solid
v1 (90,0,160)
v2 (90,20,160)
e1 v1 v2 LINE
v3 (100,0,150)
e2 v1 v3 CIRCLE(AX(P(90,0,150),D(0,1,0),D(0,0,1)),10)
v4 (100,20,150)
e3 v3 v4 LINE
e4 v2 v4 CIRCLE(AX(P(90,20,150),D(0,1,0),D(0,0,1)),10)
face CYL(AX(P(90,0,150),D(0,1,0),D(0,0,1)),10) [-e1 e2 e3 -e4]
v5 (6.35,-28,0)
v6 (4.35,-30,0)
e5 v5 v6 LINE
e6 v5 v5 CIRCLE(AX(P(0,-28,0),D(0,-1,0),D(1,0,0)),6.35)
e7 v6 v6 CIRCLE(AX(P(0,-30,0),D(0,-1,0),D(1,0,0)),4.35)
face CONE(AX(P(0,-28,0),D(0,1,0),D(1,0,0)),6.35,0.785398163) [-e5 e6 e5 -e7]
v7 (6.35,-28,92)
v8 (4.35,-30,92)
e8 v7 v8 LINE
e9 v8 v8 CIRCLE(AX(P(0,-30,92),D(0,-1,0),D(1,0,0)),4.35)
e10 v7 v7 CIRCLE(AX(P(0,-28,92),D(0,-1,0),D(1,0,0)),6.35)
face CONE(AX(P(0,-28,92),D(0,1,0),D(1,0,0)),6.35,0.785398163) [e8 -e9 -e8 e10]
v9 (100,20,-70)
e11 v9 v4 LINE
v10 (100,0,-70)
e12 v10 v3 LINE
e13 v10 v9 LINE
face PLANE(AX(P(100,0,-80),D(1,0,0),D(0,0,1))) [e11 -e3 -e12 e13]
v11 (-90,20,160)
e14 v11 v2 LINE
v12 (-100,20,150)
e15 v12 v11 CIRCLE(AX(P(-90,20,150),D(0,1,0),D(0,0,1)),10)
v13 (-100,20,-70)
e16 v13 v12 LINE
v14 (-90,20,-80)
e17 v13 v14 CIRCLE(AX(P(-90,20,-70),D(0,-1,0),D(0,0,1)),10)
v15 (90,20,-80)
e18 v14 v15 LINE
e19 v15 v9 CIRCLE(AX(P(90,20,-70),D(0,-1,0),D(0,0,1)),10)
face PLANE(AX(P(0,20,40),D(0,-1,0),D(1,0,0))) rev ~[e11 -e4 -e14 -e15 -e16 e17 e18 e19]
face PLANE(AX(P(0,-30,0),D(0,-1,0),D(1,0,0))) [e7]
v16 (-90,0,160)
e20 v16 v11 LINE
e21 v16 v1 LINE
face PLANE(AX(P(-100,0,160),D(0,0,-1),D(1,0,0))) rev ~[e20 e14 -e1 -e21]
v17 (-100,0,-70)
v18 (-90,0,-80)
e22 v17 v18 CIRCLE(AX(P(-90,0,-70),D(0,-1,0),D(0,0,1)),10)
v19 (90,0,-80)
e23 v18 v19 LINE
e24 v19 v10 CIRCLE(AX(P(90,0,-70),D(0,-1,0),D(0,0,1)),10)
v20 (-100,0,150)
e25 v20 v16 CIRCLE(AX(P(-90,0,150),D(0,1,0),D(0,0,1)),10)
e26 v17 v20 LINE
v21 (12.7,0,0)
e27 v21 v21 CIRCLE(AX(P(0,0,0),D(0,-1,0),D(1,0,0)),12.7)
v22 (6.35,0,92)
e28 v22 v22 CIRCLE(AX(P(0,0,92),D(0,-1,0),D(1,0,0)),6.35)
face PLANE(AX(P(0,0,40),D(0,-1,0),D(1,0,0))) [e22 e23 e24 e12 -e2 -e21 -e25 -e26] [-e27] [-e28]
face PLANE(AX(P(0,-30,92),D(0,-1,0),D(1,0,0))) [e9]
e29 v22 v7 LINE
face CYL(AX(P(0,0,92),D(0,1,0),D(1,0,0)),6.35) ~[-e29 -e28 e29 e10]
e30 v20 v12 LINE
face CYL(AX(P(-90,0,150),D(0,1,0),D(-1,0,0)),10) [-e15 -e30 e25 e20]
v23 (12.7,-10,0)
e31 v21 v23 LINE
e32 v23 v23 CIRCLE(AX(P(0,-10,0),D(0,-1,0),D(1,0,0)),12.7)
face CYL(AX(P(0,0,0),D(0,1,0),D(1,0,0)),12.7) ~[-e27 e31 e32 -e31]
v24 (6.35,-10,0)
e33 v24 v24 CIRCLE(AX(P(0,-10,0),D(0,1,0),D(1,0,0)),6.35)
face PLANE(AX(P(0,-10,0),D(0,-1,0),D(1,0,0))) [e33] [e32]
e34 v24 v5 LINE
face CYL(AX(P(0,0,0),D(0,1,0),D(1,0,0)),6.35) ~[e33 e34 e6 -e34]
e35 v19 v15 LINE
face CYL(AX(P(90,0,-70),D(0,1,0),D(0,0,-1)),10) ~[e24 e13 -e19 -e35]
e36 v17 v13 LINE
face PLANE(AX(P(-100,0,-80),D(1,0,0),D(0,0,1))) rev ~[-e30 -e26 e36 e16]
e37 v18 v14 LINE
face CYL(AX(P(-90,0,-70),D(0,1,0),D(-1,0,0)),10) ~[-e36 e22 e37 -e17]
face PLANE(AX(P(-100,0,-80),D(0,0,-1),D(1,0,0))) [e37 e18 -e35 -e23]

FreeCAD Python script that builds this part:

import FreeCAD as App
import Part
import Sketcher

V = App.Vector


def edges_at(feature, points):
    """Names of the edges that pass closest to the given points."""
    edges = feature.Shape.Edges
    near = lambda p: min(range(len(edges)), key=lambda i: edges[i].distToShape(Part.Vertex(*p))[0])
    return sorted({f"Edge{near(p) + 1}" for p in points})


def add_polygon(sketch, points):
    """Adds a closed chain of lines whose ends are joined by coincident constraints."""
    first, n = sketch.GeometryCount, len(points)
    for a, b in zip(points, points[1:] + points[:1]):
        sketch.addGeometry(Part.LineSegment(App.Vector(*a, 0), App.Vector(*b, 0)), False)
    for i in range(n):
        sketch.addConstraint(Sketcher.Constraint("Coincident", first + i, 2, first + (i + 1) % n, 1))

doc = App.newDocument("Part")
body = doc.addObject("PartDesign::Body", "Body")

# Sketch on XZ plane
sketch1 = body.newObject("Sketcher::SketchObject", "Sketch")
sketch1.AttachmentSupport = (doc.getObject("XZ_Plane"), [""])
sketch1.MapMode = "FlatFace"
add_polygon(sketch1, [(-100, 160), (-100, -80), (100, -80), (100, 160)])  # lines 0-3
sketch1.addConstraint(Sketcher.Constraint("Vertical", 0))
sketch1.addConstraint(Sketcher.Constraint("Horizontal", 1))
sketch1.addConstraint(Sketcher.Constraint("Vertical", 2))
sketch1.addConstraint(Sketcher.Constraint("Horizontal", 3))
sketch1.addConstraint(Sketcher.Constraint("DistanceX", 1, 1, 1, 2, 200.0))
sketch1.addConstraint(Sketcher.Constraint("DistanceY", 0, 2, 0, 1, 240.0))
sketch1.addConstraint(Sketcher.Constraint("DistanceX", 0, 2, -1, 1, 100.0))
sketch1.addConstraint(Sketcher.Constraint("DistanceY", 0, 2, -1, 1, 80.0))
pad1 = body.newObject("PartDesign::Pad", "Pad")
pad1.Profile = sketch1
pad1.Length = 20
pad1.Reversed = True

# Sketch on XZ plane
sketch2 = body.newObject("Sketcher::SketchObject", "Sketch001")
sketch2.AttachmentSupport = (doc.getObject("XZ_Plane"), [""])
sketch2.MapMode = "FlatFace"
sketch2.addGeometry(Part.Circle(V(0, 92, 0), V(0, 0, 1), 6), False)
sketch2.addGeometry(Part.Circle(V(0, 0, 0), V(0, 0, 1), 6), False)
sketch2.addConstraint(Sketcher.Constraint("Coincident", 1, 3, -1, 1))
sketch2.addConstraint(Sketcher.Constraint("Equal", 0, 1))
sketch2.addConstraint(Sketcher.Constraint("PointOnObject", 0, 3, -2))
sketch2.addConstraint(Sketcher.Constraint("Diameter", 0, 12.7))
sketch2.addConstraint(Sketcher.Constraint("DistanceY", -1, 1, 0, 3, 92.0))
pad2 = body.newObject("PartDesign::Pad", "Pad001")
pad2.Profile = sketch2
pad2.Length = 30
doc.recompute()

chamfer = body.newObject("PartDesign::Chamfer", "Chamfer")
chamfer.Base = (pad2, edges_at(pad2, [(-6.35, -30, 92), (-6.35, -30, 0)]))
chamfer.Size = 2
doc.recompute()

fillet = body.newObject("PartDesign::Fillet", "Fillet")
fillet.Base = (chamfer, edges_at(chamfer, [
    (-100, 10, 160),
    (-100, 10, -80),
    (100, 10, -80),
    (100, 10, 160),
]))
fillet.Radius = 10

# Sketch on XZ plane
sketch3 = body.newObject("Sketcher::SketchObject", "Sketch002")
sketch3.AttachmentSupport = (doc.getObject("XZ_Plane"), [""])
sketch3.MapMode = "FlatFace"
sketch3.addGeometry(Part.Circle(V(0, 0, 0), V(0, 0, 1), 13), False)
sketch3.addConstraint(Sketcher.Constraint("Coincident", 0, 3, -1, 1))
sketch3.addConstraint(Sketcher.Constraint("Diameter", 0, 25.4))
pad3 = body.newObject("PartDesign::Pad", "Pad002")
pad3.Profile = sketch3
pad3.Length = 10

doc.recompute()
